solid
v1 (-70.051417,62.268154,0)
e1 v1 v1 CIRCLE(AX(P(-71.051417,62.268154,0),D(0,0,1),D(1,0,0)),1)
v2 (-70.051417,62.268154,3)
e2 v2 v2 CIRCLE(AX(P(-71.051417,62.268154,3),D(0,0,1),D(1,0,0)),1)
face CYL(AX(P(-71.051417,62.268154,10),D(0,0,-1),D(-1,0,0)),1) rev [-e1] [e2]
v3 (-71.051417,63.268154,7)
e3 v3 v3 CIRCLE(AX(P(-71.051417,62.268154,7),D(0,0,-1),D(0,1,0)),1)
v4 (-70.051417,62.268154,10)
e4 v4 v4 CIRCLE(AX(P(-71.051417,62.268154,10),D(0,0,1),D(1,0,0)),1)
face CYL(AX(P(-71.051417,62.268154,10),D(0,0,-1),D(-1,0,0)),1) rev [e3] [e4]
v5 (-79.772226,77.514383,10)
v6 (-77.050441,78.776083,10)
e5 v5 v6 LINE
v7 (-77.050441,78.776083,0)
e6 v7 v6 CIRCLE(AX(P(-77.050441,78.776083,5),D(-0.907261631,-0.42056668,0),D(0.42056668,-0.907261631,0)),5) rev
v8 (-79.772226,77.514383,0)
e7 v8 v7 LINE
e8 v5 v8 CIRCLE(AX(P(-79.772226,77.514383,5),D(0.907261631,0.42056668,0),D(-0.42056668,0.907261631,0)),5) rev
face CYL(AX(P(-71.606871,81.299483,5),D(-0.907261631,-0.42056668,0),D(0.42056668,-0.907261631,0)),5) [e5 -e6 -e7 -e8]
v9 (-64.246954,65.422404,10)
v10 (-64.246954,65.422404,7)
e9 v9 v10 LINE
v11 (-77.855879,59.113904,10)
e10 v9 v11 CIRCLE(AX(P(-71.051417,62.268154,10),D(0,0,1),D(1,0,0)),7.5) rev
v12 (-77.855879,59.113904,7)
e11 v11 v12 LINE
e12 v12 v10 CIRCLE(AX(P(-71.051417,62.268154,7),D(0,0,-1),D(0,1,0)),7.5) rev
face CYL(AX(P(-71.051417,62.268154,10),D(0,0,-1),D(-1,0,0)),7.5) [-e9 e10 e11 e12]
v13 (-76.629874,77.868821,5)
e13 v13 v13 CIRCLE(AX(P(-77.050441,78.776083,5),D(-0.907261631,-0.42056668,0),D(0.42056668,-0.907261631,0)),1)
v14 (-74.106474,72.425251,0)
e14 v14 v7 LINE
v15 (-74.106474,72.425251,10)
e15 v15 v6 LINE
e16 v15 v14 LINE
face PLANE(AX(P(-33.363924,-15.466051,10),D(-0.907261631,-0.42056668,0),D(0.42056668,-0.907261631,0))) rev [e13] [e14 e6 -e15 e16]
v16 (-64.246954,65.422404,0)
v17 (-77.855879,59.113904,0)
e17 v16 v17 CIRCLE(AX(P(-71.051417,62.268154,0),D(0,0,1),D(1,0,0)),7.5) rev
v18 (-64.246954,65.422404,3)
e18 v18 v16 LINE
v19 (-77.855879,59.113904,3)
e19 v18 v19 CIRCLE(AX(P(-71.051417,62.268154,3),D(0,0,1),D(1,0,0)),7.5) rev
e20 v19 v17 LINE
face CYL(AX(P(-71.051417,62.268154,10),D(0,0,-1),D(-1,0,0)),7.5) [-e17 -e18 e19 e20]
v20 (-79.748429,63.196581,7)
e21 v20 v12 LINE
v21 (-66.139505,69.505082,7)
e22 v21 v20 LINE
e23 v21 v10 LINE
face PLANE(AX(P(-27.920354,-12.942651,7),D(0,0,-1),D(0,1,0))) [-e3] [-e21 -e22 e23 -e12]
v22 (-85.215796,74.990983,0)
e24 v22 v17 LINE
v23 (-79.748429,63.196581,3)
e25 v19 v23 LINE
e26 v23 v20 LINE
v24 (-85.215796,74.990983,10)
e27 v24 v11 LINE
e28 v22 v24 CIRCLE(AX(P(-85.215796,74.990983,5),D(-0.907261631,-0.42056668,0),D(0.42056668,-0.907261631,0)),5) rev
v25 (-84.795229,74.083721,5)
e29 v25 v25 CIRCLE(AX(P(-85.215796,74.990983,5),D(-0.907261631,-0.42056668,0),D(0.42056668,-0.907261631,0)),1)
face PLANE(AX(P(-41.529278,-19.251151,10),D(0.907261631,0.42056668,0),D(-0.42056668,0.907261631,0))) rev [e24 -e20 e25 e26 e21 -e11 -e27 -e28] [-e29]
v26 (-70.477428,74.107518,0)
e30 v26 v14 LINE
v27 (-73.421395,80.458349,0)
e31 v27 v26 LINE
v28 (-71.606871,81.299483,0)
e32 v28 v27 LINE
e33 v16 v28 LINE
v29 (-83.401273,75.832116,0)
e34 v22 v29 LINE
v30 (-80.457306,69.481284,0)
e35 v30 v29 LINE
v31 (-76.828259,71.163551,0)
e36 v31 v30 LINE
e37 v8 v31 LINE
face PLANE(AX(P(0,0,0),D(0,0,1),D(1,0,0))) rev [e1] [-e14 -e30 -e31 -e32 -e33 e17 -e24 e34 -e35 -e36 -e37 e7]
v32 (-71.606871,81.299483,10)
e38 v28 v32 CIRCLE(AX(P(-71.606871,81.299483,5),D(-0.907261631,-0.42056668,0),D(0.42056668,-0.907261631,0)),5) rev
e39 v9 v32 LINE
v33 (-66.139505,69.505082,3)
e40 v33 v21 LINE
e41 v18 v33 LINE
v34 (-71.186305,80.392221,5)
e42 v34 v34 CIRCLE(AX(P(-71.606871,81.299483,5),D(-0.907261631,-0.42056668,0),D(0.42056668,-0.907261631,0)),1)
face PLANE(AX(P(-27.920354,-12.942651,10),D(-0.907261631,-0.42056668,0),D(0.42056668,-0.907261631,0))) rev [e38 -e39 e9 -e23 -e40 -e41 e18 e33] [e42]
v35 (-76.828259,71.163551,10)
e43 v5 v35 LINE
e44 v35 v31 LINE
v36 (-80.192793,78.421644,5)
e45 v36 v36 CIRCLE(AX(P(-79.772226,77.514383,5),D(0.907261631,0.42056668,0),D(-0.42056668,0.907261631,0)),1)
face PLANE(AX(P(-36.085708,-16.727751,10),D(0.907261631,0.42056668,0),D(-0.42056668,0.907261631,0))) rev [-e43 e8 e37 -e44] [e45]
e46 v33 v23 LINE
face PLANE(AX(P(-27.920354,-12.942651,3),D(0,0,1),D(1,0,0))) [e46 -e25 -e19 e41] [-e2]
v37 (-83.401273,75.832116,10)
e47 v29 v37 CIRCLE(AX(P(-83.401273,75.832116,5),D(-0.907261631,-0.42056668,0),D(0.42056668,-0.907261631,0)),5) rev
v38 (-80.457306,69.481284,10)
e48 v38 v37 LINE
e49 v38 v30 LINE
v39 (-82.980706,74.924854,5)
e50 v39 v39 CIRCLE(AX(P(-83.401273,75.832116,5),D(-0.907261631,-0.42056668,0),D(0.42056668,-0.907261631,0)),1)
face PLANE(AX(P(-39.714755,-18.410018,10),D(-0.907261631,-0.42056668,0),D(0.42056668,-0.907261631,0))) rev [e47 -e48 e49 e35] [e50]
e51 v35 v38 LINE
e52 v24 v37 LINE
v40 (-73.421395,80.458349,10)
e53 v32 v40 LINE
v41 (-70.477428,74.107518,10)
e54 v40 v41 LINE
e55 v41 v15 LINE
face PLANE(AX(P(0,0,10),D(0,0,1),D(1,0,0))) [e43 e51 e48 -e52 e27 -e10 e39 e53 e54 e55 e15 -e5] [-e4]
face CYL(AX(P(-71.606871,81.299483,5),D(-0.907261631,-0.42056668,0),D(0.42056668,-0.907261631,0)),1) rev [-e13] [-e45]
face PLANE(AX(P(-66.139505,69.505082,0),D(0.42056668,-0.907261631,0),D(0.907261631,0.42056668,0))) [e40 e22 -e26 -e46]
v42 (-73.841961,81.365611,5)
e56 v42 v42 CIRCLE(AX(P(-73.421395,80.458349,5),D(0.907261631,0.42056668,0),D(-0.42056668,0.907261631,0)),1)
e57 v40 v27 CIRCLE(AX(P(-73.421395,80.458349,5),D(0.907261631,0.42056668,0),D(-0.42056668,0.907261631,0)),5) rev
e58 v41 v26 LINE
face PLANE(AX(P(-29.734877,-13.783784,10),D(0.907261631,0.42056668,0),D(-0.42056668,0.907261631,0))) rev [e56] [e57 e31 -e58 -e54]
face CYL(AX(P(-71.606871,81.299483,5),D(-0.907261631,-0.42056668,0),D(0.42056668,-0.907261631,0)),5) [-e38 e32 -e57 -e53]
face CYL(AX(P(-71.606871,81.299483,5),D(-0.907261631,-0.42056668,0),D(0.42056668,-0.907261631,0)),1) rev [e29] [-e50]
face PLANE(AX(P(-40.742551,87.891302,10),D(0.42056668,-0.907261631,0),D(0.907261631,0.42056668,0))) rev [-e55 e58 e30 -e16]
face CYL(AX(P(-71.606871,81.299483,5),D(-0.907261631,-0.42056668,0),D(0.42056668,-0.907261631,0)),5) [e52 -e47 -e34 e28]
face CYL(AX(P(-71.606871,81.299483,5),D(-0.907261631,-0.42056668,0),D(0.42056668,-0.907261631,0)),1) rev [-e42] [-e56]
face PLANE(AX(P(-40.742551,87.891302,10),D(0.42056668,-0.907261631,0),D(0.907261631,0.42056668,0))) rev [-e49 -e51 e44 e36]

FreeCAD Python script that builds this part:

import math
import FreeCAD as App
import Part
import Sketcher

doc = App.newDocument("Part")
body = doc.addObject("PartDesign::Body", "Body")

# Sketch on XY plane
sketch1 = doc.addObject("Sketcher::SketchObject", "Sketch")
body.addObject(sketch1)
sketch1.AttachmentSupport = (doc.XY_Plane, [""])
sketch1.MapMode = "FlatFace"
sketch1.addGeometry(Part.ArcOfCircle(Part.Circle(App.Vector(-71.1, 62.3, 0), App.Vector(0, 0, 1), 7.5), math.radians(-155), math.radians(25)), False)
sketch1.addGeometry(Part.LineSegment(App.Vector(-64.2, 65.4, 0), App.Vector(-73.7, 85.8, 0)), False)
sketch1.addGeometry(Part.LineSegment(App.Vector(-73.7, 85.8, 0), App.Vector(-75.5, 85, 0)), False)
sketch1.addGeometry(Part.LineSegment(App.Vector(-75.5, 85, 0), App.Vector(-70.5, 74.1, 0)), False)
sketch1.addGeometry(Part.LineSegment(App.Vector(-70.5, 74.1, 0), App.Vector(-74.1, 72.4, 0)), False)
sketch1.addGeometry(Part.LineSegment(App.Vector(-74.1, 72.4, 0), App.Vector(-79.2, 83.3, 0)), False)
sketch1.addGeometry(Part.LineSegment(App.Vector(-79.2, 83.3, 0), App.Vector(-81.9, 82.1, 0)), False)
sketch1.addGeometry(Part.LineSegment(App.Vector(-81.9, 82.1, 0), App.Vector(-76.8, 71.2, 0)), False)
sketch1.addGeometry(Part.LineSegment(App.Vector(-76.8, 71.2, 0), App.Vector(-80.5, 69.5, 0)), False)
sketch1.addGeometry(Part.LineSegment(App.Vector(-80.5, 69.5, 0), App.Vector(-85.5, 80.4, 0)), False)
sketch1.addGeometry(Part.LineSegment(App.Vector(-85.5, 80.4, 0), App.Vector(-87.3, 79.5, 0)), False)
sketch1.addGeometry(Part.LineSegment(App.Vector(-87.3, 79.5, 0), App.Vector(-77.9, 59.1, 0)), False)
sketch1.addGeometry(Part.Circle(App.Vector(-71.1, 62.3, 0), App.Vector(0, 0, 1), 1), False)
sketch1.addConstraint(Sketcher.Constraint("Tangent", 0, 2, 1, 1))
sketch1.addConstraint(Sketcher.Constraint("Coincident", 1, 2, 2, 1))
sketch1.addConstraint(Sketcher.Constraint("Coincident", 2, 2, 3, 1))
sketch1.addConstraint(Sketcher.Constraint("Coincident", 3, 2, 4, 1))
sketch1.addConstraint(Sketcher.Constraint("Coincident", 4, 2, 5, 1))
sketch1.addConstraint(Sketcher.Constraint("Coincident", 5, 2, 6, 1))
sketch1.addConstraint(Sketcher.Constraint("Coincident", 6, 2, 7, 1))
sketch1.addConstraint(Sketcher.Constraint("Coincident", 7, 2, 8, 1))
sketch1.addConstraint(Sketcher.Constraint("Coincident", 8, 2, 9, 1))
sketch1.addConstraint(Sketcher.Constraint("Coincident", 9, 2, 10, 1))
sketch1.addConstraint(Sketcher.Constraint("Coincident", 10, 2, 11, 1))
sketch1.addConstraint(Sketcher.Constraint("Tangent", 11, 2, 0, 1))
sketch1.addConstraint(Sketcher.Constraint("Coincident", 12, 3, 0, 3))
sketch1.addConstraint(Sketcher.Constraint("Perpendicular", 1, 2))
sketch1.addConstraint(Sketcher.Constraint("Perpendicular", 2, 3))
sketch1.addConstraint(Sketcher.Constraint("Perpendicular", 3, 4))
sketch1.addConstraint(Sketcher.Constraint("Perpendicular", 4, 5))
sketch1.addConstraint(Sketcher.Constraint("Perpendicular", 5, 6))
sketch1.addConstraint(Sketcher.Constraint("Perpendicular", 6, 7))
sketch1.addConstraint(Sketcher.Constraint("Perpendicular", 7, 8))
sketch1.addConstraint(Sketcher.Constraint("Perpendicular", 8, 9))
sketch1.addConstraint(Sketcher.Constraint("Perpendicular", 9, 10))
sketch1.addConstraint(Sketcher.Constraint("Perpendicular", 10, 11))
sketch1.addConstraint(Sketcher.Constraint("Equal", 3, 5))
sketch1.addConstraint(Sketcher.Constraint("Equal", 5, 7))
sketch1.addConstraint(Sketcher.Constraint("Equal", 4, 8))
sketch1.addConstraint(Sketcher.Constraint("Equal", 7, 9))
sketch1.addConstraint(Sketcher.Constraint("Equal", 2, 10))
sketch1.addConstraint(Sketcher.Constraint("Diameter", 12, 2.0))
sketch1.addConstraint(Sketcher.Constraint("Radius", 0, 7.5))
sketch1.addConstraint(Sketcher.Constraint("Distance", 2, 2.0))
sketch1.addConstraint(Sketcher.Constraint("Distance", 3, 12.0))
sketch1.addConstraint(Sketcher.Constraint("Distance", 4, 4.0))
sketch1.addConstraint(Sketcher.Constraint("Distance", 1, 22.5))
sketch1.addConstraint(Sketcher.Constraint("DistanceX", 2, 2, 3, 2, 5.0468))
sketch1.addConstraint(Sketcher.Constraint("DistanceY", -1, 1, 1, 2, 85.835791))
sketch1.addConstraint(Sketcher.Constraint("DistanceX", 2, 2, -1, 1, 75.524228))
pad1 = doc.addObject("PartDesign::Pad", "Pad")
body.addObject(pad1)
pad1.Profile = sketch1
pad1.Length = 10

# Sketch on an angled plane
sketch2 = doc.addObject("Sketcher::SketchObject", "Sketch001")
body.addObject(sketch2)
sketch2.Placement = App.Placement(App.Vector(-41.529278, -19.251151, 0), App.Rotation(App.Vector(0, 0, 1), App.Vector(-0.42056668, 0.907261631, 0), App.Vector(-0.907261631, -0.42056668, 0), "ZXY"))
sketch2.addGeometry(Part.LineSegment(App.Vector(5, 108.9, 0), App.Vector(0, 108.9, 0)), False)
sketch2.addGeometry(Part.LineSegment(App.Vector(0, 108.9, 0), App.Vector(0, 103.9, 0)), False)
sketch2.addGeometry(Part.ArcOfCircle(Part.Circle(App.Vector(5, 103.9, 0), App.Vector(0, 0, 1), 5), math.radians(90), math.radians(180)), False)
sketch2.addGeometry(Part.LineSegment(App.Vector(10, 108.9, 0), App.Vector(5, 108.9, 0)), False)
sketch2.addGeometry(Part.ArcOfCircle(Part.Circle(App.Vector(5, 103.9, 0), App.Vector(0, 0, 1), 5), math.radians(0), math.radians(90)), False)
sketch2.addGeometry(Part.LineSegment(App.Vector(10, 103.9, 0), App.Vector(10, 108.9, 0)), False)
sketch2.addGeometry(Part.Circle(App.Vector(5, 103.9, 0), App.Vector(0, 0, 1), 1), False)
sketch2.addGeometry(Part.LineSegment(App.Vector(3, 78.9, 0), App.Vector(7, 78.9, 0)), False)
sketch2.addGeometry(Part.LineSegment(App.Vector(7, 78.9, 0), App.Vector(7, 90.9, 0)), False)
sketch2.addGeometry(Part.LineSegment(App.Vector(7, 90.9, 0), App.Vector(3, 90.9, 0)), False)
sketch2.addGeometry(Part.LineSegment(App.Vector(3, 90.9, 0), App.Vector(3, 78.9, 0)), False)
sketch2.addConstraint(Sketcher.Constraint("Coincident", 0, 2, 1, 1))
sketch2.addConstraint(Sketcher.Constraint("Tangent", 1, 2, 2, 2))
sketch2.addConstraint(Sketcher.Constraint("Tangent", 2, 1, 0, 1))
sketch2.addConstraint(Sketcher.Constraint("Tangent", 3, 2, 4, 2))
sketch2.addConstraint(Sketcher.Constraint("Tangent", 4, 1, 5, 1))
sketch2.addConstraint(Sketcher.Constraint("Coincident", 5, 2, 3, 1))
sketch2.addConstraint(Sketcher.Constraint("Coincident", 7, 2, 8, 1))
sketch2.addConstraint(Sketcher.Constraint("Coincident", 8, 2, 9, 1))
sketch2.addConstraint(Sketcher.Constraint("Coincident", 9, 2, 10, 1))
sketch2.addConstraint(Sketcher.Constraint("Coincident", 10, 2, 7, 1))
sketch2.addConstraint(Sketcher.Constraint("Horizontal", 0))
sketch2.addConstraint(Sketcher.Constraint("Vertical", 1))
sketch2.addConstraint(Sketcher.Constraint("Horizontal", 3))
sketch2.addConstraint(Sketcher.Constraint("Vertical", 5))
sketch2.addConstraint(Sketcher.Constraint("Horizontal", 7))
sketch2.addConstraint(Sketcher.Constraint("Vertical", 8))
sketch2.addConstraint(Sketcher.Constraint("Horizontal", 9))
sketch2.addConstraint(Sketcher.Constraint("Vertical", 10))
sketch2.addConstraint(Sketcher.Constraint("Coincident", 4, 3, 2, 3))
sketch2.addConstraint(Sketcher.Constraint("Coincident", 6, 3, 2, 3))
sketch2.addConstraint(Sketcher.Constraint("Equal", 2, 4))
sketch2.addConstraint(Sketcher.Constraint("PointOnObject", 0, 2, -2))
sketch2.addConstraint(Sketcher.Constraint("Diameter", 6, 2.0))
sketch2.addConstraint(Sketcher.Constraint("Radius", 2, 5.0))
sketch2.addConstraint(Sketcher.Constraint("DistanceX", 7, 1, 7, 2, 4.0))
sketch2.addConstraint(Sketcher.Constraint("DistanceY", 8, 1, 8, 2, 12.0))
sketch2.addConstraint(Sketcher.Constraint("DistanceX", -1, 1, 7, 2, 7.0))
sketch2.addConstraint(Sketcher.Constraint("DistanceY", 7, 2, 2, 3, 25.0))
sketch2.addConstraint(Sketcher.Constraint("DistanceY", -1, 1, 2, 3, 103.875365))
pocket1 = doc.addObject("PartDesign::Pocket", "Pocket")
body.addObject(pocket1)
pocket1.Profile = sketch2
pocket1.Length = 15

doc.recompute()
